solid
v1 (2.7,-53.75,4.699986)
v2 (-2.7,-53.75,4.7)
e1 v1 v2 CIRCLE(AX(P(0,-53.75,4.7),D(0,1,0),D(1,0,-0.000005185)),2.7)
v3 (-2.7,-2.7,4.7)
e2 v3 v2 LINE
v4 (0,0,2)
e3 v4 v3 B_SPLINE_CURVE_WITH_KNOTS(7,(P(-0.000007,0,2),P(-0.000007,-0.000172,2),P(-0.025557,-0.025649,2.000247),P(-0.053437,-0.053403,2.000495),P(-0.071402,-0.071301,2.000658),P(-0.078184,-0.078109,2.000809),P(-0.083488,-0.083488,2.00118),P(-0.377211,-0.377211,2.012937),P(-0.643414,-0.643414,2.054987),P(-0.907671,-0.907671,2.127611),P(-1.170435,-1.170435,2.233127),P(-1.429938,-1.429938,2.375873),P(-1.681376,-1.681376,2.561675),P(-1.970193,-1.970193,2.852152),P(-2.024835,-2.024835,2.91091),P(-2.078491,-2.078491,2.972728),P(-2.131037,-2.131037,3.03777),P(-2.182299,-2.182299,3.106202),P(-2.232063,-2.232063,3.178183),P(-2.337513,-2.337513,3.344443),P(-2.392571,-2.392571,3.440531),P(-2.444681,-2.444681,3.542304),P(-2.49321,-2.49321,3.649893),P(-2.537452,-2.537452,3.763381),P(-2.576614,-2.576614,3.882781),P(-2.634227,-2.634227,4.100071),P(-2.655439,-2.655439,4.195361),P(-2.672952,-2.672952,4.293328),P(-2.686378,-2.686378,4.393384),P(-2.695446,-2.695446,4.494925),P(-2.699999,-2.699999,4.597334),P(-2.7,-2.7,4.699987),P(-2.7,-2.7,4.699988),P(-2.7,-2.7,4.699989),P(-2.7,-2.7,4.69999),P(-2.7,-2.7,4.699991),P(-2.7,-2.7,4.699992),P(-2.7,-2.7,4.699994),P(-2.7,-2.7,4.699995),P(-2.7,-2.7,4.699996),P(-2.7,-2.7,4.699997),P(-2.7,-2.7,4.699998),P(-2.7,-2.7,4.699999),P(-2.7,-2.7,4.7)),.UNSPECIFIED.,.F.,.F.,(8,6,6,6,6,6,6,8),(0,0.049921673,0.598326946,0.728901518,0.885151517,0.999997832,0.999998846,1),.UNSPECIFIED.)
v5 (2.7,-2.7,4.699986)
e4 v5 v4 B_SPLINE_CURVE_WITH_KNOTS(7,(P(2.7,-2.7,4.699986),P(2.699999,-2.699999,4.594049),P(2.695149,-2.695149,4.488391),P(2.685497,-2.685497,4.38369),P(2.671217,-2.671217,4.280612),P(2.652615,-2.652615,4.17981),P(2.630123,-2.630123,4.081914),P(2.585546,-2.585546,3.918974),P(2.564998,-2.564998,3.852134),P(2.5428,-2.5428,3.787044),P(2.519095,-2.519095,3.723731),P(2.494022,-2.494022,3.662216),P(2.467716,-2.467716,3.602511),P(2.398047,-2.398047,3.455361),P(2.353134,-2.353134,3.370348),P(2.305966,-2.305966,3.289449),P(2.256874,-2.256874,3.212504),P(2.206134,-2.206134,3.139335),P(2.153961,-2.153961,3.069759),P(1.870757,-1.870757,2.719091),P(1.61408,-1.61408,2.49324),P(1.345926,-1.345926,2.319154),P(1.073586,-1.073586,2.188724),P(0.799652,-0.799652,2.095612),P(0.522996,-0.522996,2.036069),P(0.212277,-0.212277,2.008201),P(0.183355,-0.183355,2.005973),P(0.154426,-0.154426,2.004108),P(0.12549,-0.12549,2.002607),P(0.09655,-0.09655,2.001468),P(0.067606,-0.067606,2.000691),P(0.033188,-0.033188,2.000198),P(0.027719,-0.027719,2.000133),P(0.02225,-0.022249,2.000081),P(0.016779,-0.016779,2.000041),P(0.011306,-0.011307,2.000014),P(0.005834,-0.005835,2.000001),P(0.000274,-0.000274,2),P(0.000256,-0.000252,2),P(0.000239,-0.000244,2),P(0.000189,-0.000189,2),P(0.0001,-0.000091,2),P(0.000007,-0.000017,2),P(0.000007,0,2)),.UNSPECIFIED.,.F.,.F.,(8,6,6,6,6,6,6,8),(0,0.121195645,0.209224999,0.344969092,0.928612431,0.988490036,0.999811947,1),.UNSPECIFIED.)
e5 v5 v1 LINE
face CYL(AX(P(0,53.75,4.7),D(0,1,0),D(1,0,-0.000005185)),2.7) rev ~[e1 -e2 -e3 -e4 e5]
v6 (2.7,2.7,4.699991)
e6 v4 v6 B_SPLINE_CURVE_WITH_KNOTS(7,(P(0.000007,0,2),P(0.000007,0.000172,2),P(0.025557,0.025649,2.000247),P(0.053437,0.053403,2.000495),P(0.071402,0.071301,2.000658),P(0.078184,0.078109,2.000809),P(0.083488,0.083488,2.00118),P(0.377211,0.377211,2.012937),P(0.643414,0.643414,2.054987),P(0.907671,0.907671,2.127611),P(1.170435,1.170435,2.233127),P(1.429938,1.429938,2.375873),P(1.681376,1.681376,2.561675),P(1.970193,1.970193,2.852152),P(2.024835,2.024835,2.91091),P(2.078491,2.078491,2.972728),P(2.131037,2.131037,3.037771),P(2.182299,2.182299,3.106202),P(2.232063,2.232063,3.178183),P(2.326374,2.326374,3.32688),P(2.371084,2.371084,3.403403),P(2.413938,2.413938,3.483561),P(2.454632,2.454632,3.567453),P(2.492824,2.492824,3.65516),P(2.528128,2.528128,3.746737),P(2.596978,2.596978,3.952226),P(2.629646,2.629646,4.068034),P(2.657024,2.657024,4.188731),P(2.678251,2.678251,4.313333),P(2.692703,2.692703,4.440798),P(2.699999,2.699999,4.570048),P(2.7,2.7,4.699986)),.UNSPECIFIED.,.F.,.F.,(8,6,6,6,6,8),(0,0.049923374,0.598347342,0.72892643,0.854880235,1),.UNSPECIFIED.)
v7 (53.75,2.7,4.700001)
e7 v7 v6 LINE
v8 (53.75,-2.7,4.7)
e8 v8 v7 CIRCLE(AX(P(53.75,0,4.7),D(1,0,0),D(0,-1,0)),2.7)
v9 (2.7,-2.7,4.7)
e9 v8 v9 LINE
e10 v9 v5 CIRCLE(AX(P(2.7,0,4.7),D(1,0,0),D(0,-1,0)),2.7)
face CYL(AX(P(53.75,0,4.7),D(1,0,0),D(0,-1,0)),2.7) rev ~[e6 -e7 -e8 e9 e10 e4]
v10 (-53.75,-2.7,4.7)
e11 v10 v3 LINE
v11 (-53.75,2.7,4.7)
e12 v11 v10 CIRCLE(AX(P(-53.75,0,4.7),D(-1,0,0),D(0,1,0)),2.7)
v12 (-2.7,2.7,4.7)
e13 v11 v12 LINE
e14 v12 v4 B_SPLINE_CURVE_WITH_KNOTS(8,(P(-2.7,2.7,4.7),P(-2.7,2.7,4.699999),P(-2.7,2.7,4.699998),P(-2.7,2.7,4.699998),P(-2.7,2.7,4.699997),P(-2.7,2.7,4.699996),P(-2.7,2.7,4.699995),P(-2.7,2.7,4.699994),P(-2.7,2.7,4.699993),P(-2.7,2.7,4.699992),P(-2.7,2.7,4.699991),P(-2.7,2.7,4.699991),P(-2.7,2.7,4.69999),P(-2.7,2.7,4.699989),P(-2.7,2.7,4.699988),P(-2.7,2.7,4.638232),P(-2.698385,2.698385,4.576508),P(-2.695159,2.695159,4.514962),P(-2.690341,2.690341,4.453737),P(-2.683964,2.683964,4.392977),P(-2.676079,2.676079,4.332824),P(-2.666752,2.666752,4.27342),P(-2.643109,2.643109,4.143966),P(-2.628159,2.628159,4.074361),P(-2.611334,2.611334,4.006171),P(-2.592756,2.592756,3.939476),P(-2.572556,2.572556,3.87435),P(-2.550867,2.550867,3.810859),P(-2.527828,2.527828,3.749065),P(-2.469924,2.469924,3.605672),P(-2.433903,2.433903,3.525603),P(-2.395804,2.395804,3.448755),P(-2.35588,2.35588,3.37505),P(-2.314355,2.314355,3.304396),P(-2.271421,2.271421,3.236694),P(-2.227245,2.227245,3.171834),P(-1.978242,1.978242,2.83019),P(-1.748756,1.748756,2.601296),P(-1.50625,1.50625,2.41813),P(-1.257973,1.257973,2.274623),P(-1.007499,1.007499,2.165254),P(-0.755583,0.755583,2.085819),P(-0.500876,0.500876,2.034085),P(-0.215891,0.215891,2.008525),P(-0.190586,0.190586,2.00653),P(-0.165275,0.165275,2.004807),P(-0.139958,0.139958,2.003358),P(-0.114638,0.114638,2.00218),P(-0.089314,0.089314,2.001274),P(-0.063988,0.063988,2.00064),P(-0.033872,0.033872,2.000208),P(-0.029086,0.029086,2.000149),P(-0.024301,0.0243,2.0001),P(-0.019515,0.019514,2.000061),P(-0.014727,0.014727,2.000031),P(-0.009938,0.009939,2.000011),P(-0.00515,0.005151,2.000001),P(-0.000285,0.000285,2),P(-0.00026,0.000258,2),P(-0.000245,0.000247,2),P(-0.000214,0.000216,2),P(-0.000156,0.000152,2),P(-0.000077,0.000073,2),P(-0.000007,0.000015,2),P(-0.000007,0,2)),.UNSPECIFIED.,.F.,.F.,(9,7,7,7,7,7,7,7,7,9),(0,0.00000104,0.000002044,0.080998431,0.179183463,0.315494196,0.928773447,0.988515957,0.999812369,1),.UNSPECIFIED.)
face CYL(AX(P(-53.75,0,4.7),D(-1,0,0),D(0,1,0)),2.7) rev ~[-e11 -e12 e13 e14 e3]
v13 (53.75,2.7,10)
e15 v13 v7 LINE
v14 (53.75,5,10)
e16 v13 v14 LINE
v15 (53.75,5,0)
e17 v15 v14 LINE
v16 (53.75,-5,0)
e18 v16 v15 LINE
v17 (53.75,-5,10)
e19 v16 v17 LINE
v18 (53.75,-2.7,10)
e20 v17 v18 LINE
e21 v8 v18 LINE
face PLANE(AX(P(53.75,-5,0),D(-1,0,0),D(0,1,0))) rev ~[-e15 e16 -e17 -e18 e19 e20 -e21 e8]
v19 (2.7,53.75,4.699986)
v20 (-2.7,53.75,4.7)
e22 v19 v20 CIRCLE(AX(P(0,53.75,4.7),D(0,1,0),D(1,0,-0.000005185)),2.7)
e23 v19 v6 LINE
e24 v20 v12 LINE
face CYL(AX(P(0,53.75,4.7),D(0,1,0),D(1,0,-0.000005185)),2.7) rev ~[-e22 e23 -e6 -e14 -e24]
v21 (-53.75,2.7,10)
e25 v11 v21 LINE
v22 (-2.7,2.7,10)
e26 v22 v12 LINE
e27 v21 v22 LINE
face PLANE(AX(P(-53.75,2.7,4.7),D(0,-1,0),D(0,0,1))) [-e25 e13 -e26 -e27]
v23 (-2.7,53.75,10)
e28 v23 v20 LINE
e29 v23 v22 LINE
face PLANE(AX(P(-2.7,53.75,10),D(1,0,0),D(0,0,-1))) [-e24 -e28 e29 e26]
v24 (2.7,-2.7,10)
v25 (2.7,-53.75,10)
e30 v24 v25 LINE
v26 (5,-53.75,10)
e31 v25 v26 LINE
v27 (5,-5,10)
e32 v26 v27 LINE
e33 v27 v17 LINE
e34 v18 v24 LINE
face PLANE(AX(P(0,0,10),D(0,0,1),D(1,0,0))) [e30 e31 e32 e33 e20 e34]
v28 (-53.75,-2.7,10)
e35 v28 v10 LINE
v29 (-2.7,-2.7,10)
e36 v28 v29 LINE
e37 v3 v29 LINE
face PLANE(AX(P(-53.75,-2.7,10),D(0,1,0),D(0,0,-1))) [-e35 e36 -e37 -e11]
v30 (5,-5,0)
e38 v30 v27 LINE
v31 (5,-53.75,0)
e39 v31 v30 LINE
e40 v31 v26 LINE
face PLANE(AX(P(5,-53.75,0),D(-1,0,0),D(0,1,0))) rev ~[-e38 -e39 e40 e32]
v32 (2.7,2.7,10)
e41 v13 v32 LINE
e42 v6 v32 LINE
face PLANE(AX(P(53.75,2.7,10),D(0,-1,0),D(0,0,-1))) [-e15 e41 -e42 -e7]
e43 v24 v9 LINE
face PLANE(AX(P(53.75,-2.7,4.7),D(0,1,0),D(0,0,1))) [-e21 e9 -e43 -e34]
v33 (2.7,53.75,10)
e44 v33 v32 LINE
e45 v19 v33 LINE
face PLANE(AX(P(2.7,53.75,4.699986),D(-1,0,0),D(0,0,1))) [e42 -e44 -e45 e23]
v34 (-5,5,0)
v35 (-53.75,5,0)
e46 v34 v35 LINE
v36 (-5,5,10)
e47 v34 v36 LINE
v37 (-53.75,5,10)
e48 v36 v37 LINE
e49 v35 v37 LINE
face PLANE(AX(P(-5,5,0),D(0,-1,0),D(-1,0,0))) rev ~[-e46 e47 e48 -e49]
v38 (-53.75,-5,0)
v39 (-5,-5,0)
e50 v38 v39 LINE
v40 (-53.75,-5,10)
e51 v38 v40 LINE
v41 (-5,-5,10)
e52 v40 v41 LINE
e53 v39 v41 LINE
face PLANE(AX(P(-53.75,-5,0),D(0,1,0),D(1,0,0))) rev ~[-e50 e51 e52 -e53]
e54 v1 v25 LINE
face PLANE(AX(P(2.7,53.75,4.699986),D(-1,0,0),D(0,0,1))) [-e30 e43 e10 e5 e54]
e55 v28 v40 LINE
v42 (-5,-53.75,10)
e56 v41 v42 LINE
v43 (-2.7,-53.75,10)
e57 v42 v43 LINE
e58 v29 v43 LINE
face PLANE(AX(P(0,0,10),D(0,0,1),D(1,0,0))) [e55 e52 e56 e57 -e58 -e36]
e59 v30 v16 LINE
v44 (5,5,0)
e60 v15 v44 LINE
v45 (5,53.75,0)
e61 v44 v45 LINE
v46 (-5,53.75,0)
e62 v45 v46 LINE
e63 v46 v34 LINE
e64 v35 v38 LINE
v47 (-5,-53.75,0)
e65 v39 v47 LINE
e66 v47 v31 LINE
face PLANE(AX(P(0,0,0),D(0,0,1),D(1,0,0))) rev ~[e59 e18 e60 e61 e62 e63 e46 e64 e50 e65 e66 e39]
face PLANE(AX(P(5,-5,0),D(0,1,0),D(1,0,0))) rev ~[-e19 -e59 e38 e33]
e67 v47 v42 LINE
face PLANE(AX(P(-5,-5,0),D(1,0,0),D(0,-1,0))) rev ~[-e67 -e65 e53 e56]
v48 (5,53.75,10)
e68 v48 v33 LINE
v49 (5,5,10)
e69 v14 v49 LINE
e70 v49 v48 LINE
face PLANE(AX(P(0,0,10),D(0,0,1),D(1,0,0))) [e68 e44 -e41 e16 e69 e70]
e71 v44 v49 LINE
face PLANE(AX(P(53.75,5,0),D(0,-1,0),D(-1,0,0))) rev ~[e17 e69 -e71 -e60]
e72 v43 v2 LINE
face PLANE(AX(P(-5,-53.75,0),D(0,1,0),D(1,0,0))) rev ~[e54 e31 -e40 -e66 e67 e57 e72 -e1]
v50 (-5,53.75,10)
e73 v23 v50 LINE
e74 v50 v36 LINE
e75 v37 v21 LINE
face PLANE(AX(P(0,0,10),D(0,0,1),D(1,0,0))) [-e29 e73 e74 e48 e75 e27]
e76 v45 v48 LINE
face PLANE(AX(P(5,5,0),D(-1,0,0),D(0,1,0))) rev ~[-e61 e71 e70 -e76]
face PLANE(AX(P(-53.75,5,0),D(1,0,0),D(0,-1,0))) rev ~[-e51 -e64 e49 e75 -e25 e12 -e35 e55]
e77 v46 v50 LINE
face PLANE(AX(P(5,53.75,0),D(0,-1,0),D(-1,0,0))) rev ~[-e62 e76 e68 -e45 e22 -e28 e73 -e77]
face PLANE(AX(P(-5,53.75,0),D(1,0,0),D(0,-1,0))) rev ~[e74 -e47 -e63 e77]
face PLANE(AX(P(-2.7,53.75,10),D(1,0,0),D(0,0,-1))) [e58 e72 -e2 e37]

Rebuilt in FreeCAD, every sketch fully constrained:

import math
import FreeCAD as App
import Part
import Sketcher

V = App.Vector


def add_polygon(sketch, points):
    """Adds a closed chain of lines whose ends are joined by coincident constraints."""
    first, n = sketch.GeometryCount, len(points)
    for a, b in zip(points, points[1:] + points[:1]):
        sketch.addGeometry(Part.LineSegment(App.Vector(*a, 0), App.Vector(*b, 0)), False)
    for i in range(n):
        sketch.addConstraint(Sketcher.Constraint("Coincident", first + i, 2, first + (i + 1) % n, 1))

doc = App.newDocument("Part")
params = doc.addObject("Spreadsheet::Sheet", "Params")
for row, (alias, value) in enumerate([
    ("sketch1_width", "10 mm"),
    ("sketch1_width2", "48.75 mm"),
    ("pad1_length", "10 mm"),
    ("sketch2_radius", "2.7 mm"),
    ("sketch2_height", "5.3 mm"),
    ("sketch3_radius", "2.7 mm"),
    ("sketch3_height", "5.299999 mm"),
    ("pocket2_length", "53.75 mm"),
    ("sketch4_radius", "2.7 mm"),
    ("sketch4_height", "5.3 mm"),
    ("pocket3_length", "53.75 mm"),
], start=1):
    params.set(f"A{row}", alias)
    params.set(f"B{row}", "=" + value)
    params.setAlias(f"B{row}", alias)

body = doc.addObject("PartDesign::Body", "Body")

# Sketch on XY plane
sketch1 = body.newObject("Sketcher::SketchObject", "Sketch")
sketch1.AttachmentSupport = (doc.getObject("XY_Plane"), [""])
sketch1.MapMode = "FlatFace"
add_polygon(sketch1, [(-5, 54), (-5, 5), (-54, 5), (-54, -5), (-5, -5), (-5, -54), (5, -54), (5, -5), (54, -5), (54, 5), (5, 5), (5, 54)])  # lines 0-11
sketch1.addConstraint(Sketcher.Constraint("Vertical", 0))
sketch1.addConstraint(Sketcher.Constraint("Horizontal", 1))
sketch1.addConstraint(Sketcher.Constraint("Vertical", 2))
sketch1.addConstraint(Sketcher.Constraint("Horizontal", 3))
sketch1.addConstraint(Sketcher.Constraint("Vertical", 4))
sketch1.addConstraint(Sketcher.Constraint("Horizontal", 5))
sketch1.addConstraint(Sketcher.Constraint("Vertical", 6))
sketch1.addConstraint(Sketcher.Constraint("Horizontal", 7))
sketch1.addConstraint(Sketcher.Constraint("Vertical", 8))
sketch1.addConstraint(Sketcher.Constraint("Horizontal", 9))
sketch1.addConstraint(Sketcher.Constraint("Vertical", 10))
sketch1.addConstraint(Sketcher.Constraint("Horizontal", 11))
sketch1.addConstraint(Sketcher.Constraint("Symmetric", 0, 2, 6, 2, -1, 1))
sketch1.addConstraint(Sketcher.Constraint("Symmetric", 2, 2, 8, 2, -1, 1))
sketch1.addConstraint(Sketcher.Constraint("Symmetric", 4, 2, 10, 2, -1, 1))
sketch1.addConstraint(Sketcher.Constraint("Symmetric", 3, 2, 6, 2, -2))
sketch1.addConstraint(Sketcher.Constraint("Equal", 9, 0))
sketch1.addConstraint(Sketcher.Constraint("Equal", 11, 2))
sketch1.addConstraint(Sketcher.Constraint("DistanceX", 5, 1, 5, 2, 10.0))
sketch1.addConstraint(Sketcher.Constraint("DistanceX", 1, 2, 1, 1, 48.75))
sketch1.setExpression("Constraints[30]", "Params.sketch1_width")
sketch1.setExpression("Constraints[31]", "Params.sketch1_width2")
pad1 = body.newObject("PartDesign::Pad", "Pad")
pad1.Profile = sketch1
pad1.setExpression("Length", "Params.pad1_length")

# Sketch on XZ plane
sketch2 = body.newObject("Sketcher::SketchObject", "Sketch001")
sketch2.AttachmentSupport = (doc.getObject("XZ_Plane"), [""])
sketch2.MapMode = "FlatFace"
sketch2.AttachmentOffset = App.Placement(V(0, 0, -53.75), App.Rotation())
sketch2.addGeometry(Part.ArcOfCircle(Part.Circle(V(0, 4.7, 0), V(0, 0, 1), 2.7), math.radians(180), math.radians(360)), False)
sketch2.addGeometry(Part.LineSegment(V(-2.7, 4.7, 0), V(-2.7, 10, 0)), False)
sketch2.addGeometry(Part.LineSegment(V(-2.7, 10, 0), V(2.7, 10, 0)), False)
sketch2.addGeometry(Part.LineSegment(V(2.7, 10, 0), V(2.7, 4.7, 0)), False)
sketch2.addConstraint(Sketcher.Constraint("Tangent", 0, 1, 1, 1))
sketch2.addConstraint(Sketcher.Constraint("Coincident", 1, 2, 2, 1))
sketch2.addConstraint(Sketcher.Constraint("Coincident", 2, 2, 3, 1))
sketch2.addConstraint(Sketcher.Constraint("Coincident", 3, 2, 0, 2))
sketch2.addConstraint(Sketcher.Constraint("Vertical", 1))
sketch2.addConstraint(Sketcher.Constraint("Horizontal", 2))
sketch2.addConstraint(Sketcher.Constraint("Vertical", 3))
sketch2.addConstraint(Sketcher.Constraint("PointOnObject", 0, 3, -2))
sketch2.addConstraint(Sketcher.Constraint("Radius", 0, 2.7))
sketch2.addConstraint(Sketcher.Constraint("DistanceY", 1, 1, 1, 2, 5.3))
sketch2.addConstraint(Sketcher.Constraint("DistanceY", -1, 1, 1, 2, 10.0))
sketch2.addConstraint(Sketcher.Constraint("DistanceY", 3, 2, 3, 1, 5.300014))
sketch2.setExpression("Constraints[8]", "Params.sketch2_radius")
sketch2.setExpression("Constraints[9]", "Params.sketch2_height")
pocket1 = body.newObject("PartDesign::Pocket", "Pocket")
pocket1.Profile = sketch2
pocket1.Type = "ThroughAll"
pocket1.Reversed = True

# Sketch on YZ plane
sketch3 = body.newObject("Sketcher::SketchObject", "Sketch002")
sketch3.AttachmentSupport = (doc.getObject("YZ_Plane"), [""])
sketch3.MapMode = "FlatFace"
sketch3.AttachmentOffset = App.Placement(V(0, 0, 53.75), App.Rotation())
sketch3.addGeometry(Part.ArcOfCircle(Part.Circle(V(0, 4.7, 0), V(0, 0, 1), 2.7), math.radians(180), math.radians(360)), False)
sketch3.addGeometry(Part.LineSegment(V(2.7, 4.7, 0), V(2.7, 10, 0)), False)
sketch3.addGeometry(Part.LineSegment(V(2.7, 10, 0), V(-2.7, 10, 0)), False)
sketch3.addGeometry(Part.LineSegment(V(-2.7, 10, 0), V(-2.7, 4.7, 0)), False)
sketch3.addConstraint(Sketcher.Constraint("Tangent", 0, 2, 1, 1))
sketch3.addConstraint(Sketcher.Constraint("Coincident", 1, 2, 2, 1))
sketch3.addConstraint(Sketcher.Constraint("Coincident", 2, 2, 3, 1))
sketch3.addConstraint(Sketcher.Constraint("Tangent", 3, 2, 0, 1))
sketch3.addConstraint(Sketcher.Constraint("Vertical", 1))
sketch3.addConstraint(Sketcher.Constraint("Horizontal", 2))
sketch3.addConstraint(Sketcher.Constraint("Vertical", 3))
sketch3.addConstraint(Sketcher.Constraint("PointOnObject", 0, 3, -2))
sketch3.addConstraint(Sketcher.Constraint("Radius", 0, 2.7))
sketch3.addConstraint(Sketcher.Constraint("DistanceY", 1, 1, 1, 2, 5.299999))
sketch3.addConstraint(Sketcher.Constraint("DistanceY", -1, 1, 1, 2, 10.0))
sketch3.setExpression("Constraints[8]", "Params.sketch3_radius")
sketch3.setExpression("Constraints[9]", "Params.sketch3_height")
pocket2 = body.newObject("PartDesign::Pocket", "Pocket001")
pocket2.Profile = sketch3
pocket2.setExpression("Length", "Params.pocket2_length")

# Sketch on YZ plane
sketch4 = body.newObject("Sketcher::SketchObject", "Sketch003")
sketch4.AttachmentSupport = (doc.getObject("YZ_Plane"), [""])
sketch4.MapMode = "FlatFace"
sketch4.AttachmentOffset = App.Placement(V(0, 0, -53.75), App.Rotation())
sketch4.addGeometry(Part.ArcOfCircle(Part.Circle(V(0, 4.7, 0), V(0, 0, 1), 2.7), math.radians(180), math.radians(360)), False)
sketch4.addGeometry(Part.LineSegment(V(-2.7, 4.7, 0), V(-2.7, 10, 0)), False)
sketch4.addGeometry(Part.LineSegment(V(-2.7, 10, 0), V(2.7, 10, 0)), False)
sketch4.addGeometry(Part.LineSegment(V(2.7, 10, 0), V(2.7, 4.7, 0)), False)
sketch4.addConstraint(Sketcher.Constraint("Tangent", 0, 1, 1, 1))
sketch4.addConstraint(Sketcher.Constraint("Coincident", 1, 2, 2, 1))
sketch4.addConstraint(Sketcher.Constraint("Coincident", 2, 2, 3, 1))
sketch4.addConstraint(Sketcher.Constraint("Tangent", 3, 2, 0, 2))
sketch4.addConstraint(Sketcher.Constraint("Vertical", 1))
sketch4.addConstraint(Sketcher.Constraint("Horizontal", 2))
sketch4.addConstraint(Sketcher.Constraint("Vertical", 3))
sketch4.addConstraint(Sketcher.Constraint("PointOnObject", 0, 3, -2))
sketch4.addConstraint(Sketcher.Constraint("Radius", 0, 2.7))
sketch4.addConstraint(Sketcher.Constraint("DistanceY", 1, 1, 1, 2, 5.3))
sketch4.addConstraint(Sketcher.Constraint("DistanceY", -1, 1, 1, 2, 10.0))
sketch4.setExpression("Constraints[8]", "Params.sketch4_radius")
sketch4.setExpression("Constraints[9]", "Params.sketch4_height")
pocket3 = body.newObject("PartDesign::Pocket", "Pocket002")
pocket3.Profile = sketch4
pocket3.setExpression("Length", "Params.pocket3_length")
pocket3.Reversed = True

doc.recompute()
